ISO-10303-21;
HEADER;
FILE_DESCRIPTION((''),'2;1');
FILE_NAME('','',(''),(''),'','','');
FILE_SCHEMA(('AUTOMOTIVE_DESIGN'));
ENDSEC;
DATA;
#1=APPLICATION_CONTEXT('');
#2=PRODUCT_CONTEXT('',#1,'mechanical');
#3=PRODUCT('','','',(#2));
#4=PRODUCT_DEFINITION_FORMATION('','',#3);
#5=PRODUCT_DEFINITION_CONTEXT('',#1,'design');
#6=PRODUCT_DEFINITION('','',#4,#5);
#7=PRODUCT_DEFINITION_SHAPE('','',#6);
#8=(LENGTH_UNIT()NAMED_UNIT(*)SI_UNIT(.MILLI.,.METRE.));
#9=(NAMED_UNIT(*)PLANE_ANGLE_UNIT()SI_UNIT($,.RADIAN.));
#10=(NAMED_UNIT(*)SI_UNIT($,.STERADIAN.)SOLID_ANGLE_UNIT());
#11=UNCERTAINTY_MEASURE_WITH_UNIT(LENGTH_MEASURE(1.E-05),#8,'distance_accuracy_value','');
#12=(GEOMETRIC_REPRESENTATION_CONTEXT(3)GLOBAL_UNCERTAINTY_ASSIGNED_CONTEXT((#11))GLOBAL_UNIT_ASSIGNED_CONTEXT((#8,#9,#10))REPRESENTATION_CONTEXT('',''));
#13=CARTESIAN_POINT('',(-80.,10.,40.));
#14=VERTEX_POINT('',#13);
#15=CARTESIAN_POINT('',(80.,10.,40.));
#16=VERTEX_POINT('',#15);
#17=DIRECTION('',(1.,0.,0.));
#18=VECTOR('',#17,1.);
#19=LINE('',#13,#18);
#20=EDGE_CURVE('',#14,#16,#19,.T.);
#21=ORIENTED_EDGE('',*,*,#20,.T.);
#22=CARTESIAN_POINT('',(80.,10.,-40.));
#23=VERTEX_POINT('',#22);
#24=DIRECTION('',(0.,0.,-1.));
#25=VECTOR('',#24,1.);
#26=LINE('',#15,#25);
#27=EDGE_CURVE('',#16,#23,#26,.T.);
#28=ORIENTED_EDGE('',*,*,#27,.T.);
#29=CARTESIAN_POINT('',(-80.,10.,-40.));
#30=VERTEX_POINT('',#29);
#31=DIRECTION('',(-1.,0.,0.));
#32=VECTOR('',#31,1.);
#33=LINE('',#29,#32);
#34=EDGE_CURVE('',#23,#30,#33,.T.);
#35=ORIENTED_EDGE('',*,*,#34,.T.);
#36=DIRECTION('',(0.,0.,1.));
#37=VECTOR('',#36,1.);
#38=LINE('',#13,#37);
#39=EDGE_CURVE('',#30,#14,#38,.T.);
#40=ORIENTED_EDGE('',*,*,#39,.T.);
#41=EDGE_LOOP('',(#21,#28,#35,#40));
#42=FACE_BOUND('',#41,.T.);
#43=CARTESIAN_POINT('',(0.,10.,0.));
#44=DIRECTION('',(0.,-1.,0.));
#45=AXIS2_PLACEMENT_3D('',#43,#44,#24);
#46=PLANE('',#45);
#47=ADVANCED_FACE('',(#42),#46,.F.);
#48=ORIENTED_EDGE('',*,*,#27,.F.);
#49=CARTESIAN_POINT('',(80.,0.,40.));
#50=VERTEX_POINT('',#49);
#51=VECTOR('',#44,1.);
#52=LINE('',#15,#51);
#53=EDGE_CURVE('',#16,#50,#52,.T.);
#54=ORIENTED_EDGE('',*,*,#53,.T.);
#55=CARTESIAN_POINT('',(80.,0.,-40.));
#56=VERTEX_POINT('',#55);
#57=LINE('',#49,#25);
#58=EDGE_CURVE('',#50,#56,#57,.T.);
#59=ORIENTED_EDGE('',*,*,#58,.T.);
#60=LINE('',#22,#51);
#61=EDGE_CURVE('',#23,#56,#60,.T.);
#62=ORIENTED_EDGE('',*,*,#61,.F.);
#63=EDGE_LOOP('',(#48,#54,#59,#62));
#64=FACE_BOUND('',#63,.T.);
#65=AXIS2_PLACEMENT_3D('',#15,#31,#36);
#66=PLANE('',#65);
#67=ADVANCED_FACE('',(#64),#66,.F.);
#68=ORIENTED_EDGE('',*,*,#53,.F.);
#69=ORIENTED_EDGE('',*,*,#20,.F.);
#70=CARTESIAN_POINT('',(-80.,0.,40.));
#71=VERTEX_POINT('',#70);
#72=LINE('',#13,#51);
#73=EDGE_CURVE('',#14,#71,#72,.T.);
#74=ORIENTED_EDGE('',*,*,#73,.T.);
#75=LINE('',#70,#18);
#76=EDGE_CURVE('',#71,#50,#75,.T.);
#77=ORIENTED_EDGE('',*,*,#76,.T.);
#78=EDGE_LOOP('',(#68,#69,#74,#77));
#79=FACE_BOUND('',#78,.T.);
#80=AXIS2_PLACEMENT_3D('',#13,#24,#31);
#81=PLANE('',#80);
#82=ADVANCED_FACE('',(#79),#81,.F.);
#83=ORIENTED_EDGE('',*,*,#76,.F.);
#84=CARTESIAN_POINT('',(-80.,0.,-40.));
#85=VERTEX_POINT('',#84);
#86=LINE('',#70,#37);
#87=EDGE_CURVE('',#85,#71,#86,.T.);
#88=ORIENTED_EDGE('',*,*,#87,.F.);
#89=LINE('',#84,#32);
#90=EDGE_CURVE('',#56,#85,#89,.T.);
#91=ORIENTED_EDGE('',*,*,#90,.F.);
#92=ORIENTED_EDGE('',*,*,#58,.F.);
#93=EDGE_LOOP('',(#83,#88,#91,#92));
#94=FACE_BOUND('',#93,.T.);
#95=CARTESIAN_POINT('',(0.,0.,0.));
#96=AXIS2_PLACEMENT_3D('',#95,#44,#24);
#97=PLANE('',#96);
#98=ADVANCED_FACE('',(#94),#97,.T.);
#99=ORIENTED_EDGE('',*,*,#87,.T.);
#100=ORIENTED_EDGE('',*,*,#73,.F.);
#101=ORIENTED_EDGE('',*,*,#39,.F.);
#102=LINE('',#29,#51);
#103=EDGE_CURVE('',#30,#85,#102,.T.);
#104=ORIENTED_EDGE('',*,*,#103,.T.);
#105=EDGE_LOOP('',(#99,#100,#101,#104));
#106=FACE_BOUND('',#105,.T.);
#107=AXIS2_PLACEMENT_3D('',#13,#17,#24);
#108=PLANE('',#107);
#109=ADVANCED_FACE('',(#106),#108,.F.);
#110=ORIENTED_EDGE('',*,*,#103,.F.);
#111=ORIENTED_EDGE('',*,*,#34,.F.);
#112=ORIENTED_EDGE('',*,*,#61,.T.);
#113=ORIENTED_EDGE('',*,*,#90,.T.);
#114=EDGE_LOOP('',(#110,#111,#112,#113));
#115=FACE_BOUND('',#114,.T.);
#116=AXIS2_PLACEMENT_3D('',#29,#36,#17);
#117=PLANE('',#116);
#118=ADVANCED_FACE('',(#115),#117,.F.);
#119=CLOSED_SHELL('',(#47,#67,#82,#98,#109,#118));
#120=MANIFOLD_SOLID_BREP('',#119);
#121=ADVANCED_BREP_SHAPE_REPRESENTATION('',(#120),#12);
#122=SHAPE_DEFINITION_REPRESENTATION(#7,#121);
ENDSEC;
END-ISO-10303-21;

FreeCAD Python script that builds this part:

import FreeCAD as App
import Part
import Sketcher
from FreeCAD import Vector

doc = App.newDocument("Part")
body = doc.addObject("PartDesign::Body", "Body")

# Sketch on XZ plane
sketch1 = doc.addObject("Sketcher::SketchObject", "Sketch")
body.addObject(sketch1)
sketch1.AttachmentSupport = (doc.XZ_Plane, [""])
sketch1.MapMode = "FlatFace"
sketch1.addGeometry([
    Part.LineSegment(Vector(-80, -40, 0), Vector(-80, 40, 0)),
    Part.LineSegment(Vector(-80, 40, 0), Vector(80, 40, 0)),
    Part.LineSegment(Vector(80, 40, 0), Vector(80, -40, 0)),
    Part.LineSegment(Vector(80, -40, 0), Vector(-80, -40, 0)),
], False)
sketch1.addConstraint([
    Sketcher.Constraint("Coincident", 0, 2, 1, 1),
    Sketcher.Constraint("Coincident", 1, 2, 2, 1),
    Sketcher.Constraint("Coincident", 2, 2, 3, 1),
    Sketcher.Constraint("Coincident", 3, 2, 0, 1),
    Sketcher.Constraint("Vertical", 0),
    Sketcher.Constraint("Horizontal", 1),
    Sketcher.Constraint("Vertical", 2),
    Sketcher.Constraint("Horizontal", 3),
    Sketcher.Constraint("Symmetric", 0, 2, 2, 2, -1, 1),
    Sketcher.Constraint("DistanceX", 1, 1, 1, 2, 160.0),
    Sketcher.Constraint("DistanceY", 0, 1, 0, 2, 80.0),
])
pad1 = doc.addObject("PartDesign::Pad", "Pad")
body.addObject(pad1)
pad1.Profile = sketch1
pad1.Length = 10
pad1.Reversed = True

doc.recompute()
